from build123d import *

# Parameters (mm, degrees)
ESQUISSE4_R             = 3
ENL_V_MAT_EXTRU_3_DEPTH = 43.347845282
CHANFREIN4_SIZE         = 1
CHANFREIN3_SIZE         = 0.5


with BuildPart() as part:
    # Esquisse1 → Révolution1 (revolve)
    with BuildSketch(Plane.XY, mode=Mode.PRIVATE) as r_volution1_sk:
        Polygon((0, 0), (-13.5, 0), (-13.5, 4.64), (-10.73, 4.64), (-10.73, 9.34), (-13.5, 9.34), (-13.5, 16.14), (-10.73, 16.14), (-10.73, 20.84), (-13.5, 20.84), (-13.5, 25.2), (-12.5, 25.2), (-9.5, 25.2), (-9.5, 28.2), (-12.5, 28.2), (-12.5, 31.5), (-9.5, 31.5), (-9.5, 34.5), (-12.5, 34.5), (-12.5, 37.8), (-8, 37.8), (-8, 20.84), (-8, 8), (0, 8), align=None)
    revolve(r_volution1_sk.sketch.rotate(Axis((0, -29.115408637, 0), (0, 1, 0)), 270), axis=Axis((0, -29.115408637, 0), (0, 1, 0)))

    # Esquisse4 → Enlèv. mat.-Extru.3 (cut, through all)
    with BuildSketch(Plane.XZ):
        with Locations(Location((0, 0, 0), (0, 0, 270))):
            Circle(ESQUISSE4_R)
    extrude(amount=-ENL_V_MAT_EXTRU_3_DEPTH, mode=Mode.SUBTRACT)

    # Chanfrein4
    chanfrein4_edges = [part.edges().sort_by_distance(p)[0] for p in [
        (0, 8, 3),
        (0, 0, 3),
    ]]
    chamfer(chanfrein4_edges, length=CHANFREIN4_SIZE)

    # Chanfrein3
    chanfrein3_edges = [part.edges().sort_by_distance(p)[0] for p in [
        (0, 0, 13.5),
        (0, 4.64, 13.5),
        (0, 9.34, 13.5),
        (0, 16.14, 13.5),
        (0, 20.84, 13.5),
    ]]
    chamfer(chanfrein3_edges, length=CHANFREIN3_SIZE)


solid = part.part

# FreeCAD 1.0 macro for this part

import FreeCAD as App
import Part
import Sketcher
from FreeCAD import Vector
Q = App.Units.Quantity


def edges_at(feature, points):
    """Names of the edges that pass closest to the given points."""
    edges = feature.Shape.Edges
    near = lambda p: min(range(len(edges)), key=lambda i: edges[i].distToShape(Part.Vertex(*p))[0])
    return sorted({f"Edge{near(p) + 1}" for p in points})


def add_polygon(sketch, points):
    """Adds a closed chain of lines whose ends are joined by coincident constraints."""
    first, n = sketch.GeometryCount, len(points)
    for a, b in zip(points, points[1:] + points[:1]):
        sketch.addGeometry(Part.LineSegment(App.Vector(*a, 0), App.Vector(*b, 0)), False)
    for i in range(n):
        sketch.addConstraint(Sketcher.Constraint("Coincident", first + i, 2, first + (i + 1) % n, 1))

doc = App.newDocument("Part")
params = doc.addObject("Spreadsheet::Sheet", "Params")
for row, (alias, value) in enumerate([
    ("sketch1_width", "8 mm"),
    ("sketch1_width2", "3 mm"),
    ("sketch1_width3", "4 mm"),
    ("sketch1_width4", "13.5 mm"),
    ("sketch1_height", "29.8 mm"),
    ("revolution_angle", "360 deg"),
    ("sketch2_diameter", "6 mm"),
    ("chamfer_size", "1 mm"),
    ("chamfer2_size", "0.5 mm"),
], start=1):
    params.set(f"A{row}", alias)
    params.set(f"B{row}", "=" + value)
    params.setAlias(f"B{row}", alias)

body = doc.addObject("PartDesign::Body", "Body")

# Sketch on XY plane
sketch1 = doc.addObject("Sketcher::SketchObject", "Sketch")
body.addObject(sketch1)
sketch1.AttachmentSupport = (doc.XY_Plane, [""])
sketch1.MapMode = "FlatFace"
add_polygon(sketch1, [(-13.5, 0), (0, 0), (0, 8), (-8, 8), (-8, 37.8), (-12.5, 37.8), (-12.5, 34.5), (-9.5, 34.5), (-9.5, 31.5), (-12.5, 31.5), (-12.5, 28.2), (-9.5, 28.2), (-9.5, 25.2), (-13.5, 25.2), (-13.5, 20.8), (-10.7, 20.8), (-10.7, 16.1), (-13.5, 16.1), (-13.5, 9.3), (-10.7, 9.3), (-10.7, 4.6), (-13.5, 4.6)])  # lines 0-21
sketch1.addConstraint([
    Sketcher.Constraint("Horizontal", 0),
    Sketcher.Constraint("Vertical", 1),
    Sketcher.Constraint("Horizontal", 2),
    Sketcher.Constraint("Vertical", 3),
    Sketcher.Constraint("Horizontal", 4),
    Sketcher.Constraint("Vertical", 5),
    Sketcher.Constraint("Horizontal", 6),
    Sketcher.Constraint("Vertical", 7),
    Sketcher.Constraint("Horizontal", 8),
    Sketcher.Constraint("Vertical", 9),
    Sketcher.Constraint("Horizontal", 10),
    Sketcher.Constraint("Vertical", 11),
    Sketcher.Constraint("Horizontal", 12),
    Sketcher.Constraint("Vertical", 13),
    Sketcher.Constraint("Horizontal", 14),
    Sketcher.Constraint("Vertical", 15),
    Sketcher.Constraint("Horizontal", 16),
    Sketcher.Constraint("Vertical", 17),
    Sketcher.Constraint("Horizontal", 18),
    Sketcher.Constraint("Vertical", 19),
    Sketcher.Constraint("Horizontal", 20),
    Sketcher.Constraint("Vertical", 21),
    Sketcher.Constraint("Coincident", 0, 2, -1, 1),
    Sketcher.Constraint("Vertical", 5, 2, 8, 2),
    Sketcher.Constraint("Vertical", 7, 2, 10, 2),
    Sketcher.Constraint("Vertical", 13, 2, 16, 2),
    Sketcher.Constraint("Vertical", 15, 2, 18, 2),
    Sketcher.Constraint("Vertical", 17, 2, 20, 2),
    Sketcher.Constraint("Equal", 2, 1),
    Sketcher.Constraint("Equal", 10, 7),
    Sketcher.Constraint("Equal", 5, 9),
    Sketcher.Constraint("Equal", 7, 11),
    Sketcher.Constraint("Equal", 15, 19),
    Sketcher.Constraint("DistanceX", 2, 2, 2, 1, Q("8 mm")),
    Sketcher.Constraint("DistanceX", 6, 1, 6, 2, Q("3 mm")),
    Sketcher.Constraint("DistanceX", 12, 2, 12, 1, Q("4 mm")),
    Sketcher.Constraint("DistanceX", 0, 1, 0, 2, Q("13.5 mm")),
    Sketcher.Constraint("DistanceY", 3, 1, 3, 2, Q("29.8 mm")),
    Sketcher.Constraint("DistanceY", 5, 2, 5, 1, Q("3.3 mm")),
    Sketcher.Constraint("DistanceY", 15, 2, 15, 1, Q("4.7 mm")),
    Sketcher.Constraint("DistanceY", 17, 2, 17, 1, Q("6.8 mm")),
    Sketcher.Constraint("DistanceX", 14, 1, 14, 2, Q("2.77 mm")),
    Sketcher.Constraint("DistanceY", 13, 2, 13, 1, Q("4.36 mm")),
])
sketch1.setExpression("Constraints[55]", "Params.sketch1_width")
sketch1.setExpression("Constraints[56]", "Params.sketch1_width2")
sketch1.setExpression("Constraints[57]", "Params.sketch1_width3")
sketch1.setExpression("Constraints[58]", "Params.sketch1_width4")
sketch1.setExpression("Constraints[59]", "Params.sketch1_height")
revolution = doc.addObject("PartDesign::Revolution", "Revolution")
body.addObject(revolution)
revolution.Profile = sketch1
revolution.ReferenceAxis = (sketch1, ["V_Axis"])
revolution.setExpression("Angle", "Params.revolution_angle")

# Sketch on XZ plane
sketch2 = doc.addObject("Sketcher::SketchObject", "Sketch001")
body.addObject(sketch2)
sketch2.AttachmentSupport = (doc.XZ_Plane, [""])
sketch2.MapMode = "FlatFace"
sketch2.addGeometry(Part.Circle(Vector(0, 0, 0), Vector(0, 0, 1), 3), False)
sketch2.addConstraint([
    Sketcher.Constraint("Coincident", 0, 3, -1, 1),
    Sketcher.Constraint("Diameter", 0, Q("6 mm")),
])
sketch2.setExpression("Constraints[1]", "Params.sketch2_diameter")
pocket1 = doc.addObject("PartDesign::Pocket", "Pocket")
body.addObject(pocket1)
pocket1.Profile = sketch2
pocket1.Type = "ThroughAll"
doc.recompute()

chamfer = doc.addObject("PartDesign::Chamfer", "Chamfer")
body.addObject(chamfer)
chamfer.Base = (pocket1, edges_at(pocket1, [(0, 8, 3), (0, 0, 3)]))
chamfer.setExpression("Size", "Params.chamfer_size")
doc.recompute()

chamfer2 = doc.addObject("PartDesign::Chamfer", "Chamfer001")
body.addObject(chamfer2)
chamfer2.Base = (chamfer, edges_at(chamfer, [
    (0, 0, 13.5),
    (0, 4.64, 13.5),
    (0, 9.34, 13.5),
    (0, 16.14, 13.5),
    (0, 20.84, 13.5),
]))
chamfer2.setExpression("Size", "Params.chamfer2_size")

doc.recompute()
